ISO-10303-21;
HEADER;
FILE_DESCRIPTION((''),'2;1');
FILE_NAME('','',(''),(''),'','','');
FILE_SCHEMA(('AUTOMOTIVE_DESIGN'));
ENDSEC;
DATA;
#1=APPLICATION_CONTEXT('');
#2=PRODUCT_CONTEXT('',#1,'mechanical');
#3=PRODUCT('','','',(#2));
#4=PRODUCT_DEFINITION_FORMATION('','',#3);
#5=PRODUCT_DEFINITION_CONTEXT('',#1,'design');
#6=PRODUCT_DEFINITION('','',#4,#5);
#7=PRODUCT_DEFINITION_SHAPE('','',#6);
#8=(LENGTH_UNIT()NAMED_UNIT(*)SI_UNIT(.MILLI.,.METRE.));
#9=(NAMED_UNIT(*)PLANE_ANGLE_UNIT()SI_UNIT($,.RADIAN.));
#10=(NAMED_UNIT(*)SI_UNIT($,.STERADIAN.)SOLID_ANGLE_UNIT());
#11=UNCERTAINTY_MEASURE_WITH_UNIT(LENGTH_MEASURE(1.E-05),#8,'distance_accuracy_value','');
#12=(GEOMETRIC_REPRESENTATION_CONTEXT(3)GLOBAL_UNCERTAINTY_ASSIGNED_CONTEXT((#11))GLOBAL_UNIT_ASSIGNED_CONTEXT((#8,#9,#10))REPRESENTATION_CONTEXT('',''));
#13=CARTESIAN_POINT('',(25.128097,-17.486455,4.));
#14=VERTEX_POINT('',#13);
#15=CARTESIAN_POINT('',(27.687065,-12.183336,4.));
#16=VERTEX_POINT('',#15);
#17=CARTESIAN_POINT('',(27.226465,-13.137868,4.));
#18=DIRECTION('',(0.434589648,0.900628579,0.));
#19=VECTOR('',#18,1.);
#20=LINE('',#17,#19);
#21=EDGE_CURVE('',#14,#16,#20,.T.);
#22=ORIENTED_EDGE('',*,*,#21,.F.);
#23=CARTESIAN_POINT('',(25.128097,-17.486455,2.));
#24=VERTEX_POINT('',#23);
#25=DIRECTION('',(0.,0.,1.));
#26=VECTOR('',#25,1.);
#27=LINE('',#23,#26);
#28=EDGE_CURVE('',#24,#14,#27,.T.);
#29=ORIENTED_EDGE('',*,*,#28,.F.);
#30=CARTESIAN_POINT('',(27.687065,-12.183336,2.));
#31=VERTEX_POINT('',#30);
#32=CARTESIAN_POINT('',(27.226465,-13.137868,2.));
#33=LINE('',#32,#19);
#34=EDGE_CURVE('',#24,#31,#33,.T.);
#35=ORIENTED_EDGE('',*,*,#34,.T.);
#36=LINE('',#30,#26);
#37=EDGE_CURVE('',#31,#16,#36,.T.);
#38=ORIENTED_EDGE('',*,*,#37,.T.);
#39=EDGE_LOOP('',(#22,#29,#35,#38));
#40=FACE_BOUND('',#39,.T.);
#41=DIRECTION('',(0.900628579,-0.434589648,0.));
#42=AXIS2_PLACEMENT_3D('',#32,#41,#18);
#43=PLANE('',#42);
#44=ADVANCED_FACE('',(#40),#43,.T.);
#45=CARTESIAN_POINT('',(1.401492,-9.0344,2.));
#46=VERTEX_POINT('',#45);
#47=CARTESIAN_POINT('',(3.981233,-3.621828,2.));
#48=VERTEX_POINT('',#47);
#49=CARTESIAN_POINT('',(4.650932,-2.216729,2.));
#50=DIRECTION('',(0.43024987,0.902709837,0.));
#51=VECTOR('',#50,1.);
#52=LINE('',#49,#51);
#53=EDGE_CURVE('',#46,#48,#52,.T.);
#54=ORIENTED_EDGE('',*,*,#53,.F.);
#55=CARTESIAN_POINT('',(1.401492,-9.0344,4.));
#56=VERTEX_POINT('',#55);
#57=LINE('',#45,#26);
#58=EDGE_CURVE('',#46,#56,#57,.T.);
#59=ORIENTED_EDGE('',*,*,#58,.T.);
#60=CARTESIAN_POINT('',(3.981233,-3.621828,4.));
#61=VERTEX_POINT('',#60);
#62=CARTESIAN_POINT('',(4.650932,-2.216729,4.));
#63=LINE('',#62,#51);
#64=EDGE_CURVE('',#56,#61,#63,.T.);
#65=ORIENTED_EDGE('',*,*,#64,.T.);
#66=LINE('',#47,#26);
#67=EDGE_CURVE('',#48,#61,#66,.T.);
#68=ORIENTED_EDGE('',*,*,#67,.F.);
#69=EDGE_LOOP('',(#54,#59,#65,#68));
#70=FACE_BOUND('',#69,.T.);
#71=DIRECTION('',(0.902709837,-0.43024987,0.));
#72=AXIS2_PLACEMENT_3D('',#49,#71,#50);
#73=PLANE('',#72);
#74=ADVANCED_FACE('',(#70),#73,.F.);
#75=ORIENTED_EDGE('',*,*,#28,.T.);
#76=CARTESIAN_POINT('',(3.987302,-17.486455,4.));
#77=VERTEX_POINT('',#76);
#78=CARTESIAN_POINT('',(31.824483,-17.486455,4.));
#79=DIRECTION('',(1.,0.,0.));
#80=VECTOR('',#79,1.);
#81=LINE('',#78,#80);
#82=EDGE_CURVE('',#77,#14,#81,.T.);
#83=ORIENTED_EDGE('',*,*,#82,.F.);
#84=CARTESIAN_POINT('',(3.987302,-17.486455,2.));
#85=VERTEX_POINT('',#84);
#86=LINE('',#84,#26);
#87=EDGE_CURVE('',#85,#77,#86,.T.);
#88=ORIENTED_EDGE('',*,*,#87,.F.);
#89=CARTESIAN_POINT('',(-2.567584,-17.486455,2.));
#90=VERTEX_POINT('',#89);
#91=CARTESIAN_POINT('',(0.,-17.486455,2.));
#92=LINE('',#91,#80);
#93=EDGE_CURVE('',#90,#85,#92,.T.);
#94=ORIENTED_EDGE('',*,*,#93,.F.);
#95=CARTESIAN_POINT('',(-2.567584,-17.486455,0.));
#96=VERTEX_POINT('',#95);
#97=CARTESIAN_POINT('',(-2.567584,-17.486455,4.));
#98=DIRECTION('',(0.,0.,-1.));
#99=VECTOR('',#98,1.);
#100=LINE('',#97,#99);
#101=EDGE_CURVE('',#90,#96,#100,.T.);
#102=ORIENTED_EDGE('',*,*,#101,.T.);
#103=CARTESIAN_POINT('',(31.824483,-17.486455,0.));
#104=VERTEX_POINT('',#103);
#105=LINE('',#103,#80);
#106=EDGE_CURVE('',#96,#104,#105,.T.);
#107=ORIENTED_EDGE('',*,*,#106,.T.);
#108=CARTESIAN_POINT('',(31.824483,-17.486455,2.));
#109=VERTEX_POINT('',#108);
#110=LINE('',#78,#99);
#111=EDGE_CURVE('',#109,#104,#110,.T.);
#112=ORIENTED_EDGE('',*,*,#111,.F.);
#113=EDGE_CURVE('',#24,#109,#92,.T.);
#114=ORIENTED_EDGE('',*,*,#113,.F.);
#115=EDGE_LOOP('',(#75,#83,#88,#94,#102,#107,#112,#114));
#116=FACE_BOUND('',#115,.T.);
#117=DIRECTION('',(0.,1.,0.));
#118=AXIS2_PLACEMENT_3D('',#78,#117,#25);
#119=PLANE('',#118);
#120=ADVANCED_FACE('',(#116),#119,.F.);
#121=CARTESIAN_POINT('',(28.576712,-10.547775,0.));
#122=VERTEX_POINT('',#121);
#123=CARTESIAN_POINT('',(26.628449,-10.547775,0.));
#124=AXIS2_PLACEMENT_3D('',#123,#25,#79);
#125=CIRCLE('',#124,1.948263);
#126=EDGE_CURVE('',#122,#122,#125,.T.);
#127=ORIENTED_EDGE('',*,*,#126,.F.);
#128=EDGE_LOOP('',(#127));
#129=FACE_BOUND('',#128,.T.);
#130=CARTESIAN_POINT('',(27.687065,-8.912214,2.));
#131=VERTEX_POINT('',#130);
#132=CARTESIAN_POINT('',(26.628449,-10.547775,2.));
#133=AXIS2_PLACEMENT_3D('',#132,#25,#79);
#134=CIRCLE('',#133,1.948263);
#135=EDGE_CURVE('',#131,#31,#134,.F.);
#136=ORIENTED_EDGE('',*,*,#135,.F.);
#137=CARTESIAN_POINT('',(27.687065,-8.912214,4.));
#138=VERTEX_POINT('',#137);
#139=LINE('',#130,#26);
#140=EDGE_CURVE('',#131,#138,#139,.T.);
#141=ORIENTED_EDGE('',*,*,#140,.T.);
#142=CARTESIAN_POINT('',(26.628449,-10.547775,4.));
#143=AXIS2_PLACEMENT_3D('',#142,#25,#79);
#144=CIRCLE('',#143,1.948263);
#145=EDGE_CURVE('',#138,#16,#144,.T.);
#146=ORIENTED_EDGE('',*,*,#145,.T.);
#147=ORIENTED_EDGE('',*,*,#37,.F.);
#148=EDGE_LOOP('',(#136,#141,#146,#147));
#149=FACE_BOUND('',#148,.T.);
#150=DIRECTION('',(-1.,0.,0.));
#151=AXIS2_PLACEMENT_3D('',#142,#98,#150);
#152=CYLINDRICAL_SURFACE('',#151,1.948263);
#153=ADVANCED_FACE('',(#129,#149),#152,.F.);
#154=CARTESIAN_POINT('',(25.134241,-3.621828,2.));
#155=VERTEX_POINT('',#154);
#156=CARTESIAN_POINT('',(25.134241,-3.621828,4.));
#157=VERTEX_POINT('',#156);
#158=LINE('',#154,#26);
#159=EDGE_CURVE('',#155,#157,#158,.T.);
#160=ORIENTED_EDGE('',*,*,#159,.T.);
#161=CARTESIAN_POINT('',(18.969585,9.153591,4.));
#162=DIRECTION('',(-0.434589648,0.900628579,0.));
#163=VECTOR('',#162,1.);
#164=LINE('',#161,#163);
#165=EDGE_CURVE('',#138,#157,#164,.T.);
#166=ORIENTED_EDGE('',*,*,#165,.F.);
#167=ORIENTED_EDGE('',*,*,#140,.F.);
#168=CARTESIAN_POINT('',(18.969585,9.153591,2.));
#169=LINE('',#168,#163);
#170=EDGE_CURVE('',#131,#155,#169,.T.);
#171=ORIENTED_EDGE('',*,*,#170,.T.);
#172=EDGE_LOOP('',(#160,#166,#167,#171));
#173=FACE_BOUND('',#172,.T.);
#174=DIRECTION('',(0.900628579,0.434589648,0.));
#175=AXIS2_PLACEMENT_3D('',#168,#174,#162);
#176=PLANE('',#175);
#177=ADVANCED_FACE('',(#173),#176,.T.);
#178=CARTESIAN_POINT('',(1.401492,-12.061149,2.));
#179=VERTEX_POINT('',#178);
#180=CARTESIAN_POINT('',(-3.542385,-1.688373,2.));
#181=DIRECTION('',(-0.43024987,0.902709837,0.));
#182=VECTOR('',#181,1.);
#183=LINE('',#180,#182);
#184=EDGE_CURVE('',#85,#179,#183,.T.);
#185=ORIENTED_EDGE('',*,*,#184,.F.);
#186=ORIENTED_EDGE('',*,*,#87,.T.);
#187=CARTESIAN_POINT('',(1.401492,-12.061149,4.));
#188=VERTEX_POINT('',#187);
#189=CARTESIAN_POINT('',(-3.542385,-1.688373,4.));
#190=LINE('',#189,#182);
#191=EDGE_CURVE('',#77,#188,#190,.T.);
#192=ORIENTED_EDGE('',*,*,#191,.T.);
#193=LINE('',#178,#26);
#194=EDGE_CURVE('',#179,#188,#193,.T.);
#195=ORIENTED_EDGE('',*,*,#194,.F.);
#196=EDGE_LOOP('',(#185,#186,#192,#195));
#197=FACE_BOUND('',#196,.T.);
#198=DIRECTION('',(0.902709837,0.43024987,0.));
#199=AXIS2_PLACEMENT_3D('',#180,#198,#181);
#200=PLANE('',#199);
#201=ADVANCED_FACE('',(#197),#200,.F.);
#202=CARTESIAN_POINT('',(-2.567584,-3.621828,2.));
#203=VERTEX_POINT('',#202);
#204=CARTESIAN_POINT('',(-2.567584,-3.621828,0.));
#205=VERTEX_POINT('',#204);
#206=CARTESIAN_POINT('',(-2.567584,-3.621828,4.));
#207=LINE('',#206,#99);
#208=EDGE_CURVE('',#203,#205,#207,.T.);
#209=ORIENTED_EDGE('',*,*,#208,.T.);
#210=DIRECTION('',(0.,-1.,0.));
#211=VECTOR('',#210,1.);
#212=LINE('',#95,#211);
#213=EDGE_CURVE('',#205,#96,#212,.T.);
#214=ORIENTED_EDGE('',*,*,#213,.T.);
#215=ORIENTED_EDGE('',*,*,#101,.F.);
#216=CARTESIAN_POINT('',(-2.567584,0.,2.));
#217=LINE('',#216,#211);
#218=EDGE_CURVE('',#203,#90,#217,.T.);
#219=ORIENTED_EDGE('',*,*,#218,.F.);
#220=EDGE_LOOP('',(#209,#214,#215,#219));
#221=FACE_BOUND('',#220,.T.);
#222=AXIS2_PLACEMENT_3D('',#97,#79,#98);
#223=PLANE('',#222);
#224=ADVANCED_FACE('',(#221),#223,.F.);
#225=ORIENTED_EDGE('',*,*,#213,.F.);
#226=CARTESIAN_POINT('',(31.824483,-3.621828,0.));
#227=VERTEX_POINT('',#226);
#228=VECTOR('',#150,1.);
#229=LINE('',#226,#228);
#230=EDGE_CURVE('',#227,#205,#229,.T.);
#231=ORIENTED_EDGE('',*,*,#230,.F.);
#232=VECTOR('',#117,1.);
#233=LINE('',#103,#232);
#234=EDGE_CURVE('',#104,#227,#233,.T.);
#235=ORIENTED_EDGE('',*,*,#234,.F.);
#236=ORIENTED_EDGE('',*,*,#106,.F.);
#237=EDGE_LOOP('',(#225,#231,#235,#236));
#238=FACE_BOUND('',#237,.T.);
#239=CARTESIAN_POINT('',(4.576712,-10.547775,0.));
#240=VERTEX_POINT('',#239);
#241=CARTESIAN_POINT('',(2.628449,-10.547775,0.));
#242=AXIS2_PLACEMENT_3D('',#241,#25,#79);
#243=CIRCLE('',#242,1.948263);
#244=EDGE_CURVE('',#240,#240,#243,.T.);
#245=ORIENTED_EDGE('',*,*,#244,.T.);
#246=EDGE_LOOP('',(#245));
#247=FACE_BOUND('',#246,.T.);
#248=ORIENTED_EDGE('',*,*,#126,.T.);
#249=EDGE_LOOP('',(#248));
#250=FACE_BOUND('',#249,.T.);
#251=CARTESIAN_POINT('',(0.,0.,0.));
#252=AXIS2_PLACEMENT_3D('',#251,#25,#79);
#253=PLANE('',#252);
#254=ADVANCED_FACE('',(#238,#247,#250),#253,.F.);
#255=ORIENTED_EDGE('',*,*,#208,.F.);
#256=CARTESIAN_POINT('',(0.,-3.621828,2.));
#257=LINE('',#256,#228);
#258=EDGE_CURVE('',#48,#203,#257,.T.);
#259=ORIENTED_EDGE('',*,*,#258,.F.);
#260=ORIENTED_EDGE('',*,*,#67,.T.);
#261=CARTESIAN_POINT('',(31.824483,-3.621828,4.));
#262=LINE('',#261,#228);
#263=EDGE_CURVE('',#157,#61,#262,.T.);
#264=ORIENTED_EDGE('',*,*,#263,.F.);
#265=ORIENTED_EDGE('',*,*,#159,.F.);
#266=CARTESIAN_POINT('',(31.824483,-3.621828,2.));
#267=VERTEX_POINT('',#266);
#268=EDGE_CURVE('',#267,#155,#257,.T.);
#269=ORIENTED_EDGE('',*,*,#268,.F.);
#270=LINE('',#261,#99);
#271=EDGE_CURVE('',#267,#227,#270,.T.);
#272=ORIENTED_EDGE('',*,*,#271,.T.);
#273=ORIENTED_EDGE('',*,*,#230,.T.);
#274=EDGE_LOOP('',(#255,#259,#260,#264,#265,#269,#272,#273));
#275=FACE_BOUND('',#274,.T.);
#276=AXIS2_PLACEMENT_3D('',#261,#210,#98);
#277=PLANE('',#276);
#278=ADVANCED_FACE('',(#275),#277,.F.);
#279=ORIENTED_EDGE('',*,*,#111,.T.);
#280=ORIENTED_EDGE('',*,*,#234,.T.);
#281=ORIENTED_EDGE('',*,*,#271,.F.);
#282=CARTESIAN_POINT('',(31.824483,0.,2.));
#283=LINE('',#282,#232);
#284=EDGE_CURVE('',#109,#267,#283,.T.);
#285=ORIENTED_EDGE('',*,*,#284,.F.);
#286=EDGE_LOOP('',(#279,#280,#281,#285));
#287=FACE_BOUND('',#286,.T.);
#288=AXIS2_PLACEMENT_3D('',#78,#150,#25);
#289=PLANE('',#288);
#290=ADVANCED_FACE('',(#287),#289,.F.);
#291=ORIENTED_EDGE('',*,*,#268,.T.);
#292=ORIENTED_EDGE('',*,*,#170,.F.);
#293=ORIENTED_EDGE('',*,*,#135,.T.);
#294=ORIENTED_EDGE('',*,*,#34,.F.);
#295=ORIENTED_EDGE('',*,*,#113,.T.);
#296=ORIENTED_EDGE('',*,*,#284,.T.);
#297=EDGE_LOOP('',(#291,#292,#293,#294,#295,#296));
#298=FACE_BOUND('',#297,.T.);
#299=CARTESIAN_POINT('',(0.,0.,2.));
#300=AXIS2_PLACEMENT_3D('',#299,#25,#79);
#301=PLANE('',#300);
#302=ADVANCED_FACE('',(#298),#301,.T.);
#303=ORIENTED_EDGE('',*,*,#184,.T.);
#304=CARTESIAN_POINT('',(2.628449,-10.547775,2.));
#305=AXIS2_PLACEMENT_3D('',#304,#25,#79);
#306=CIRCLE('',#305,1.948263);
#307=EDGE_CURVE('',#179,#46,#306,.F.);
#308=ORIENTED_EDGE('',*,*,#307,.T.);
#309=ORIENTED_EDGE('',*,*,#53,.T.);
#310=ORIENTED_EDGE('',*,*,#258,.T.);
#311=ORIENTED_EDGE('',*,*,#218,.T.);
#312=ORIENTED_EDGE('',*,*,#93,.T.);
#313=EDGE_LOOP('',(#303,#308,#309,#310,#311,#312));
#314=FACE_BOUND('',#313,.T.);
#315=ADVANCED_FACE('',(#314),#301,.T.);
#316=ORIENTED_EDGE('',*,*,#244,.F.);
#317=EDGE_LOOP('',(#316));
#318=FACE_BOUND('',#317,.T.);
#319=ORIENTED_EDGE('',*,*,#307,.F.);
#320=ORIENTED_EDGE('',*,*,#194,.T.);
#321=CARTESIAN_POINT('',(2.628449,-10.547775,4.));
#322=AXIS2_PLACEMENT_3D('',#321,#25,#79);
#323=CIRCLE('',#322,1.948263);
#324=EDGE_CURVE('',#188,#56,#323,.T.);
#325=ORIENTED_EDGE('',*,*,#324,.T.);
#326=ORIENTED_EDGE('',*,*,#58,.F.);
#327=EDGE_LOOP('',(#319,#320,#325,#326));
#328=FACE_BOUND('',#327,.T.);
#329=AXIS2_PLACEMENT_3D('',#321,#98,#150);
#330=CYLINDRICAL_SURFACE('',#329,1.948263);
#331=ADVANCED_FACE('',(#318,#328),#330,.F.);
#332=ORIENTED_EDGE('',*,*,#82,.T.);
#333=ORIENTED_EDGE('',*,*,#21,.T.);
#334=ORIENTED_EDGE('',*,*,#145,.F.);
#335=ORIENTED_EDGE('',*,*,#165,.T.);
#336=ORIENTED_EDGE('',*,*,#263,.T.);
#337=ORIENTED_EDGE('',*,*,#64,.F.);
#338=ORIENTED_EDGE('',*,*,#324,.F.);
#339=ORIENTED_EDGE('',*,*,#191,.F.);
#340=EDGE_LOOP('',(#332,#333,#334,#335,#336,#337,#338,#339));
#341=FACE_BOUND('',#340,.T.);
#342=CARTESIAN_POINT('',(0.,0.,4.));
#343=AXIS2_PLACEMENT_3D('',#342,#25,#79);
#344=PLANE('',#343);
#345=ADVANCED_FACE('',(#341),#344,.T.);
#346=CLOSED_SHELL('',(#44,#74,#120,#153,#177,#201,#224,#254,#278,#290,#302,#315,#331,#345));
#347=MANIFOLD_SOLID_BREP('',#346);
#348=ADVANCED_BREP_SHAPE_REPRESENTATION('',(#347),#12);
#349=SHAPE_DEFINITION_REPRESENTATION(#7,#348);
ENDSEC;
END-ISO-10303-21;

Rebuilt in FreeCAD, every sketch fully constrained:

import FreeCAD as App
import Part
import Sketcher
Q = App.Units.Quantity

doc = App.newDocument("Part")
body = doc.addObject("PartDesign::Body", "Body")

# Sketch on XY plane
sketch1 = body.newObject("Sketcher::SketchObject", "Sketch")
sketch1.AttachmentSupport = (doc.getObject("XY_Plane"), [""])
sketch1.MapMode = "FlatFace"
sketch1.addGeometry([
    Part.LineSegment(App.Vector(31.8, -17.5, 0), App.Vector(31.8, -3.6, 0)),  # 0
    Part.LineSegment(App.Vector(31.8, -3.6, 0), App.Vector(-2.6, -3.6, 0)),  # 1
    Part.LineSegment(App.Vector(-2.6, -3.6, 0), App.Vector(-2.6, -17.5, 0)),  # 2
    Part.LineSegment(App.Vector(-2.6, -17.5, 0), App.Vector(31.8, -17.5, 0)),  # 3
    Part.Circle(App.Vector(26.6, -10.5, 0), App.Vector(0, 0, 1), 1.9),  # 4
    Part.Circle(App.Vector(2.6, -10.5, 0), App.Vector(0, 0, 1), 1.9),  # 5
], False)
sketch1.addConstraint([
    Sketcher.Constraint("Coincident", 0, 2, 1, 1),
    Sketcher.Constraint("Coincident", 1, 2, 2, 1),
    Sketcher.Constraint("Coincident", 2, 2, 3, 1),
    Sketcher.Constraint("Coincident", 3, 2, 0, 1),
    Sketcher.Constraint("Vertical", 0),
    Sketcher.Constraint("Horizontal", 1),
    Sketcher.Constraint("Vertical", 2),
    Sketcher.Constraint("Horizontal", 3),
    Sketcher.Constraint("Equal", 4, 5),
    Sketcher.Constraint("Horizontal", 4, 3, 5, 3),
    Sketcher.Constraint("DistanceX", 5, 3, 4, 3, Q("24 mm")),
    Sketcher.Constraint("Diameter", 4, Q("3.896525 mm")),
    Sketcher.Constraint("DistanceX", 1, 2, 1, 1, Q("34.392067 mm")),
    Sketcher.Constraint("DistanceY", 0, 1, 0, 2, Q("13.864626 mm")),
    Sketcher.Constraint("DistanceX", -1, 1, 4, 3, Q("26.628449 mm")),
    Sketcher.Constraint("DistanceY", 0, 2, -1, 1, Q("3.621828 mm")),
    Sketcher.Constraint("DistanceY", 2, 2, 5, 3, Q("6.93868 mm")),
    Sketcher.Constraint("DistanceX", -1, 1, 0, 2, Q("31.824483 mm")),
])
pad1 = body.newObject("PartDesign::Pad", "Pad")
pad1.Profile = sketch1
pad1.Length = 4

# Sketch on XY plane
sketch2 = body.newObject("Sketcher::SketchObject", "Sketch001")
sketch2.AttachmentSupport = (doc.getObject("XY_Plane"), [""])
sketch2.MapMode = "FlatFace"
sketch2.AttachmentOffset = App.Placement(App.Vector(0, 0, 4), App.Rotation())
sketch2.addGeometry([
    Part.LineSegment(App.Vector(4, -4, 0), App.Vector(-3, -4, 0)),  # 0
    Part.LineSegment(App.Vector(-3, -4, 0), App.Vector(-3, -17, 0)),  # 1
    Part.LineSegment(App.Vector(-3, -17, 0), App.Vector(4, -17, 0)),  # 2
    Part.LineSegment(App.Vector(4, -17, 0), App.Vector(1, -11, 0)),  # 3
    Part.LineSegment(App.Vector(1, -11, 0), App.Vector(4, -4, 0)),  # 4
    Part.LineSegment(App.Vector(32, -4, 0), App.Vector(25, -4, 0)),  # 5
    Part.LineSegment(App.Vector(25, -4, 0), App.Vector(28, -11, 0)),  # 6
    Part.LineSegment(App.Vector(28, -11, 0), App.Vector(25, -17, 0)),  # 7
    Part.LineSegment(App.Vector(25, -17, 0), App.Vector(32, -17, 0)),  # 8
    Part.LineSegment(App.Vector(32, -17, 0), App.Vector(32, -4, 0)),  # 9
], False)
sketch2.addConstraint([
    Sketcher.Constraint("Coincident", 0, 2, 1, 1),
    Sketcher.Constraint("Coincident", 1, 2, 2, 1),
    Sketcher.Constraint("Coincident", 2, 2, 3, 1),
    Sketcher.Constraint("Coincident", 3, 2, 4, 1),
    Sketcher.Constraint("Coincident", 4, 2, 0, 1),
    Sketcher.Constraint("Coincident", 5, 2, 6, 1),
    Sketcher.Constraint("Coincident", 6, 2, 7, 1),
    Sketcher.Constraint("Coincident", 7, 2, 8, 1),
    Sketcher.Constraint("Coincident", 8, 2, 9, 1),
    Sketcher.Constraint("Coincident", 9, 2, 5, 1),
    Sketcher.Constraint("Horizontal", 0),
    Sketcher.Constraint("Vertical", 1),
    Sketcher.Constraint("Horizontal", 2),
    Sketcher.Constraint("Horizontal", 5),
    Sketcher.Constraint("Horizontal", 8),
    Sketcher.Constraint("Vertical", 9),
    Sketcher.Constraint("Horizontal", 4, 2, 5, 2),
    Sketcher.Constraint("Horizontal", 3, 2, 6, 2),
    Sketcher.Constraint("Horizontal", 2, 2, 7, 2),
    Sketcher.Constraint("Vertical", 2, 2, 4, 2),
    Sketcher.Constraint("Vertical", 5, 2, 7, 2),
    Sketcher.Constraint("Equal", 3, 4),
    Sketcher.Constraint("Distance", 3, Q("7.6865 mm")),
    Sketcher.Constraint("DistanceY", 1, 2, 1, 1, Q("13.877359 mm")),
    Sketcher.Constraint("DistanceX", 0, 2, 0, 1, Q("6.554887 mm")),
    Sketcher.Constraint("DistanceX", 5, 2, 5, 1, Q("6.696386 mm")),
    Sketcher.Constraint("DistanceX", -1, 1, 6, 2, Q("28.47629 mm")),
    Sketcher.Constraint("DistanceX", 3, 2, 5, 2, Q("24.44791 mm")),
    Sketcher.Constraint("Distance", 6, Q("7.704263 mm")),
    Sketcher.Constraint("DistanceY", 0, 2, -1, 1, Q("3.609095 mm")),
])
pocket1 = body.newObject("PartDesign::Pocket", "Pocket")
pocket1.Profile = sketch2
pocket1.Length = 2

doc.recompute()
